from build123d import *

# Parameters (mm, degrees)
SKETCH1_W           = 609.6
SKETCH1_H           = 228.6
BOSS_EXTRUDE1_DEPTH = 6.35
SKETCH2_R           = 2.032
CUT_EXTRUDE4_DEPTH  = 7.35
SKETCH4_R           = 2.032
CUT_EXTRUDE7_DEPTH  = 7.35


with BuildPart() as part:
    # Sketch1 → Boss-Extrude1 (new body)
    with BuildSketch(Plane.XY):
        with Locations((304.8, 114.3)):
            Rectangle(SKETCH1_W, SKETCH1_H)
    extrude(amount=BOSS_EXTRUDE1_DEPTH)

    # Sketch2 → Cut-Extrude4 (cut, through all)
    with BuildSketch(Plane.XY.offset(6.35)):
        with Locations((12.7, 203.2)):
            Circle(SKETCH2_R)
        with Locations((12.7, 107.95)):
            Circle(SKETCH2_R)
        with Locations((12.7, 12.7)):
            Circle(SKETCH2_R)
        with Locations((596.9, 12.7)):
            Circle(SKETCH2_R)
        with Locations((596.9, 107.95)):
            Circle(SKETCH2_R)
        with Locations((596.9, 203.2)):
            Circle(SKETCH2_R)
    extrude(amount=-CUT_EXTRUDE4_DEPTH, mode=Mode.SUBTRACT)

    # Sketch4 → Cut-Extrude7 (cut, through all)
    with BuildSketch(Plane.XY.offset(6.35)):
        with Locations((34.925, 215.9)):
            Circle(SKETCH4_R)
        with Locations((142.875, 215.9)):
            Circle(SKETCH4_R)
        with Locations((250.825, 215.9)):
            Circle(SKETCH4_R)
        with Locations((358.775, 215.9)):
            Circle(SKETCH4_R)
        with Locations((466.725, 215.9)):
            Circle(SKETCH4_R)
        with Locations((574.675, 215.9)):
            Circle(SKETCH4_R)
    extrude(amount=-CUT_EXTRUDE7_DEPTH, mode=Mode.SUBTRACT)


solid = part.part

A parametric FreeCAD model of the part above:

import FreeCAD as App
import Part
import Sketcher
from FreeCAD import Vector
Q = App.Units.Quantity

doc = App.newDocument("Part")
body = doc.addObject("PartDesign::Body", "Body")

sketch1 = body.newObject("Sketcher::SketchObject", "Sketch")
sketch1.AttachmentSupport = (doc.getObject("XY_Plane"), [""])
sketch1.MapMode = "FlatFace"
sketch1.addGeometry(Part.LineSegment(Vector(0, 228.6, 0), Vector(0, 0, 0)), False)
sketch1.addGeometry(Part.LineSegment(Vector(0, 0, 0), Vector(609.6, 0, 0)), False)
sketch1.addGeometry(Part.LineSegment(Vector(609.6, 0, 0), Vector(609.6, 228.6, 0)), False)
sketch1.addGeometry(Part.LineSegment(Vector(609.6, 228.6, 0), Vector(0, 228.6, 0)), False)
sketch1.addConstraint(Sketcher.Constraint("Coincident", 0, 2, 1, 1))
sketch1.addConstraint(Sketcher.Constraint("Coincident", 1, 2, 2, 1))
sketch1.addConstraint(Sketcher.Constraint("Coincident", 2, 2, 3, 1))
sketch1.addConstraint(Sketcher.Constraint("Coincident", 3, 2, 0, 1))
sketch1.addConstraint(Sketcher.Constraint("Vertical", 0))
sketch1.addConstraint(Sketcher.Constraint("Horizontal", 1))
sketch1.addConstraint(Sketcher.Constraint("Vertical", 2))
sketch1.addConstraint(Sketcher.Constraint("Horizontal", 3))
sketch1.addConstraint(Sketcher.Constraint("Coincident", 0, 2, -1, 1))
sketch1.addConstraint(Sketcher.Constraint("DistanceX", 1, 1, 1, 2, Q("24 in")))
sketch1.addConstraint(Sketcher.Constraint("DistanceY", 0, 2, 0, 1, Q("9 in")))
pad1 = body.newObject("PartDesign::Pad", "Pad")
pad1.Profile = sketch1
pad1.Length = Q("0.25 in")

sketch2 = body.newObject("Sketcher::SketchObject", "Sketch001")
sketch2.AttachmentSupport = (doc.getObject("XY_Plane"), [""])
sketch2.MapMode = "FlatFace"
sketch2.AttachmentOffset = App.Placement(Vector(0, 0, 0.25 * 25.4), App.Rotation())
sketch2.addGeometry(Part.Circle(Vector(12.7, 203.2, 0), Vector(0, 0, 1), 2.032), False)
sketch2.addGeometry(Part.Circle(Vector(12.7, 107.95, 0), Vector(0, 0, 1), 2.032), False)
sketch2.addGeometry(Part.Circle(Vector(12.7, 12.7, 0), Vector(0, 0, 1), 2.032), False)
sketch2.addGeometry(Part.Circle(Vector(596.9, 12.7, 0), Vector(0, 0, 1), 2.032), False)
sketch2.addGeometry(Part.Circle(Vector(596.9, 107.95, 0), Vector(0, 0, 1), 2.032), False)
sketch2.addGeometry(Part.Circle(Vector(596.9, 203.2, 0), Vector(0, 0, 1), 2.032), False)
sketch2.addConstraint(Sketcher.Constraint("Equal", 0, 1))
sketch2.addConstraint(Sketcher.Constraint("Equal", 1, 2))
sketch2.addConstraint(Sketcher.Constraint("Equal", 2, 3))
sketch2.addConstraint(Sketcher.Constraint("Equal", 3, 4))
sketch2.addConstraint(Sketcher.Constraint("Equal", 4, 5))
sketch2.addConstraint(Sketcher.Constraint("Horizontal", 2, 3, 3, 3))
sketch2.addConstraint(Sketcher.Constraint("Horizontal", 1, 3, 4, 3))
sketch2.addConstraint(Sketcher.Constraint("Horizontal", 0, 3, 5, 3))
sketch2.addConstraint(Sketcher.Constraint("Vertical", 0, 3, 1, 3))
sketch2.addConstraint(Sketcher.Constraint("Vertical", 1, 3, 2, 3))
sketch2.addConstraint(Sketcher.Constraint("Vertical", 3, 3, 4, 3))
sketch2.addConstraint(Sketcher.Constraint("Vertical", 4, 3, 5, 3))
sketch2.addConstraint(Sketcher.Constraint("Diameter", 0, Q("0.16 in")))
sketch2.addConstraint(Sketcher.Constraint("DistanceY", -1, 1, 0, 3, Q("8 in")))
sketch2.addConstraint(Sketcher.Constraint("DistanceX", 2, 3, 3, 3, Q("23 in")))
sketch2.addConstraint(Sketcher.Constraint("DistanceX", -1, 1, 0, 3, Q("0.5 in")))
sketch2.addConstraint(Sketcher.Constraint("DistanceY", -1, 1, 2, 3, Q("0.5 in")))
sketch2.addConstraint(Sketcher.Constraint("DistanceY", -1, 1, 1, 3, Q("4.25 in")))
pocket1 = body.newObject("PartDesign::Pocket", "Pocket")
pocket1.Profile = sketch2
pocket1.Type = "ThroughAll"

sketch3 = body.newObject("Sketcher::SketchObject", "Sketch002")
sketch3.AttachmentSupport = (doc.getObject("XY_Plane"), [""])
sketch3.MapMode = "FlatFace"
sketch3.AttachmentOffset = App.Placement(Vector(0, 0, 0.25 * 25.4), App.Rotation())
sketch3.addGeometry(Part.Circle(Vector(34.925, 215.9, 0), Vector(0, 0, 1), 2.032), False)
sketch3.addGeometry(Part.Circle(Vector(142.875, 215.9, 0), Vector(0, 0, 1), 2.032), False)
sketch3.addGeometry(Part.Circle(Vector(250.825, 215.9, 0), Vector(0, 0, 1), 2.032), False)
sketch3.addGeometry(Part.Circle(Vector(358.775, 215.9, 0), Vector(0, 0, 1), 2.032), False)
sketch3.addGeometry(Part.Circle(Vector(466.725, 215.9, 0), Vector(0, 0, 1), 2.032), False)
sketch3.addGeometry(Part.Circle(Vector(574.675, 215.9, 0), Vector(0, 0, 1), 2.032), False)
sketch3.addConstraint(Sketcher.Constraint("Equal", 0, 1))
sketch3.addConstraint(Sketcher.Constraint("Equal", 1, 2))
sketch3.addConstraint(Sketcher.Constraint("Equal", 2, 3))
sketch3.addConstraint(Sketcher.Constraint("Equal", 3, 4))
sketch3.addConstraint(Sketcher.Constraint("Equal", 4, 5))
sketch3.addConstraint(Sketcher.Constraint("Horizontal", 0, 3, 1, 3))
sketch3.addConstraint(Sketcher.Constraint("Horizontal", 1, 3, 2, 3))
sketch3.addConstraint(Sketcher.Constraint("Horizontal", 2, 3, 3, 3))
sketch3.addConstraint(Sketcher.Constraint("Horizontal", 3, 3, 4, 3))
sketch3.addConstraint(Sketcher.Constraint("Horizontal", 4, 3, 5, 3))
sketch3.addConstraint(Sketcher.Constraint("Diameter", 0, Q("0.16 in")))
sketch3.addConstraint(Sketcher.Constraint("DistanceX", 0, 3, 4, 3, Q("17 in")))
sketch3.addConstraint(Sketcher.Constraint("DistanceX", 1, 3, 5, 3, Q("17 in")))
sketch3.addConstraint(Sketcher.Constraint("DistanceY", -1, 1, 0, 3, Q("8.5 in")))
sketch3.addConstraint(Sketcher.Constraint("DistanceX", 0, 3, 2, 3, Q("8.5 in")))
sketch3.addConstraint(Sketcher.Constraint("DistanceX", 1, 3, 3, 3, Q("8.5 in")))
sketch3.addConstraint(Sketcher.Constraint("DistanceX", 0, 3, 1, 3, Q("4.25 in")))
sketch3.addConstraint(Sketcher.Constraint("DistanceX", -1, 1, 0, 3, Q("1.375 in")))
pocket2 = body.newObject("PartDesign::Pocket", "Pocket001")
pocket2.Profile = sketch3
pocket2.Type = "ThroughAll"

doc.recompute()
